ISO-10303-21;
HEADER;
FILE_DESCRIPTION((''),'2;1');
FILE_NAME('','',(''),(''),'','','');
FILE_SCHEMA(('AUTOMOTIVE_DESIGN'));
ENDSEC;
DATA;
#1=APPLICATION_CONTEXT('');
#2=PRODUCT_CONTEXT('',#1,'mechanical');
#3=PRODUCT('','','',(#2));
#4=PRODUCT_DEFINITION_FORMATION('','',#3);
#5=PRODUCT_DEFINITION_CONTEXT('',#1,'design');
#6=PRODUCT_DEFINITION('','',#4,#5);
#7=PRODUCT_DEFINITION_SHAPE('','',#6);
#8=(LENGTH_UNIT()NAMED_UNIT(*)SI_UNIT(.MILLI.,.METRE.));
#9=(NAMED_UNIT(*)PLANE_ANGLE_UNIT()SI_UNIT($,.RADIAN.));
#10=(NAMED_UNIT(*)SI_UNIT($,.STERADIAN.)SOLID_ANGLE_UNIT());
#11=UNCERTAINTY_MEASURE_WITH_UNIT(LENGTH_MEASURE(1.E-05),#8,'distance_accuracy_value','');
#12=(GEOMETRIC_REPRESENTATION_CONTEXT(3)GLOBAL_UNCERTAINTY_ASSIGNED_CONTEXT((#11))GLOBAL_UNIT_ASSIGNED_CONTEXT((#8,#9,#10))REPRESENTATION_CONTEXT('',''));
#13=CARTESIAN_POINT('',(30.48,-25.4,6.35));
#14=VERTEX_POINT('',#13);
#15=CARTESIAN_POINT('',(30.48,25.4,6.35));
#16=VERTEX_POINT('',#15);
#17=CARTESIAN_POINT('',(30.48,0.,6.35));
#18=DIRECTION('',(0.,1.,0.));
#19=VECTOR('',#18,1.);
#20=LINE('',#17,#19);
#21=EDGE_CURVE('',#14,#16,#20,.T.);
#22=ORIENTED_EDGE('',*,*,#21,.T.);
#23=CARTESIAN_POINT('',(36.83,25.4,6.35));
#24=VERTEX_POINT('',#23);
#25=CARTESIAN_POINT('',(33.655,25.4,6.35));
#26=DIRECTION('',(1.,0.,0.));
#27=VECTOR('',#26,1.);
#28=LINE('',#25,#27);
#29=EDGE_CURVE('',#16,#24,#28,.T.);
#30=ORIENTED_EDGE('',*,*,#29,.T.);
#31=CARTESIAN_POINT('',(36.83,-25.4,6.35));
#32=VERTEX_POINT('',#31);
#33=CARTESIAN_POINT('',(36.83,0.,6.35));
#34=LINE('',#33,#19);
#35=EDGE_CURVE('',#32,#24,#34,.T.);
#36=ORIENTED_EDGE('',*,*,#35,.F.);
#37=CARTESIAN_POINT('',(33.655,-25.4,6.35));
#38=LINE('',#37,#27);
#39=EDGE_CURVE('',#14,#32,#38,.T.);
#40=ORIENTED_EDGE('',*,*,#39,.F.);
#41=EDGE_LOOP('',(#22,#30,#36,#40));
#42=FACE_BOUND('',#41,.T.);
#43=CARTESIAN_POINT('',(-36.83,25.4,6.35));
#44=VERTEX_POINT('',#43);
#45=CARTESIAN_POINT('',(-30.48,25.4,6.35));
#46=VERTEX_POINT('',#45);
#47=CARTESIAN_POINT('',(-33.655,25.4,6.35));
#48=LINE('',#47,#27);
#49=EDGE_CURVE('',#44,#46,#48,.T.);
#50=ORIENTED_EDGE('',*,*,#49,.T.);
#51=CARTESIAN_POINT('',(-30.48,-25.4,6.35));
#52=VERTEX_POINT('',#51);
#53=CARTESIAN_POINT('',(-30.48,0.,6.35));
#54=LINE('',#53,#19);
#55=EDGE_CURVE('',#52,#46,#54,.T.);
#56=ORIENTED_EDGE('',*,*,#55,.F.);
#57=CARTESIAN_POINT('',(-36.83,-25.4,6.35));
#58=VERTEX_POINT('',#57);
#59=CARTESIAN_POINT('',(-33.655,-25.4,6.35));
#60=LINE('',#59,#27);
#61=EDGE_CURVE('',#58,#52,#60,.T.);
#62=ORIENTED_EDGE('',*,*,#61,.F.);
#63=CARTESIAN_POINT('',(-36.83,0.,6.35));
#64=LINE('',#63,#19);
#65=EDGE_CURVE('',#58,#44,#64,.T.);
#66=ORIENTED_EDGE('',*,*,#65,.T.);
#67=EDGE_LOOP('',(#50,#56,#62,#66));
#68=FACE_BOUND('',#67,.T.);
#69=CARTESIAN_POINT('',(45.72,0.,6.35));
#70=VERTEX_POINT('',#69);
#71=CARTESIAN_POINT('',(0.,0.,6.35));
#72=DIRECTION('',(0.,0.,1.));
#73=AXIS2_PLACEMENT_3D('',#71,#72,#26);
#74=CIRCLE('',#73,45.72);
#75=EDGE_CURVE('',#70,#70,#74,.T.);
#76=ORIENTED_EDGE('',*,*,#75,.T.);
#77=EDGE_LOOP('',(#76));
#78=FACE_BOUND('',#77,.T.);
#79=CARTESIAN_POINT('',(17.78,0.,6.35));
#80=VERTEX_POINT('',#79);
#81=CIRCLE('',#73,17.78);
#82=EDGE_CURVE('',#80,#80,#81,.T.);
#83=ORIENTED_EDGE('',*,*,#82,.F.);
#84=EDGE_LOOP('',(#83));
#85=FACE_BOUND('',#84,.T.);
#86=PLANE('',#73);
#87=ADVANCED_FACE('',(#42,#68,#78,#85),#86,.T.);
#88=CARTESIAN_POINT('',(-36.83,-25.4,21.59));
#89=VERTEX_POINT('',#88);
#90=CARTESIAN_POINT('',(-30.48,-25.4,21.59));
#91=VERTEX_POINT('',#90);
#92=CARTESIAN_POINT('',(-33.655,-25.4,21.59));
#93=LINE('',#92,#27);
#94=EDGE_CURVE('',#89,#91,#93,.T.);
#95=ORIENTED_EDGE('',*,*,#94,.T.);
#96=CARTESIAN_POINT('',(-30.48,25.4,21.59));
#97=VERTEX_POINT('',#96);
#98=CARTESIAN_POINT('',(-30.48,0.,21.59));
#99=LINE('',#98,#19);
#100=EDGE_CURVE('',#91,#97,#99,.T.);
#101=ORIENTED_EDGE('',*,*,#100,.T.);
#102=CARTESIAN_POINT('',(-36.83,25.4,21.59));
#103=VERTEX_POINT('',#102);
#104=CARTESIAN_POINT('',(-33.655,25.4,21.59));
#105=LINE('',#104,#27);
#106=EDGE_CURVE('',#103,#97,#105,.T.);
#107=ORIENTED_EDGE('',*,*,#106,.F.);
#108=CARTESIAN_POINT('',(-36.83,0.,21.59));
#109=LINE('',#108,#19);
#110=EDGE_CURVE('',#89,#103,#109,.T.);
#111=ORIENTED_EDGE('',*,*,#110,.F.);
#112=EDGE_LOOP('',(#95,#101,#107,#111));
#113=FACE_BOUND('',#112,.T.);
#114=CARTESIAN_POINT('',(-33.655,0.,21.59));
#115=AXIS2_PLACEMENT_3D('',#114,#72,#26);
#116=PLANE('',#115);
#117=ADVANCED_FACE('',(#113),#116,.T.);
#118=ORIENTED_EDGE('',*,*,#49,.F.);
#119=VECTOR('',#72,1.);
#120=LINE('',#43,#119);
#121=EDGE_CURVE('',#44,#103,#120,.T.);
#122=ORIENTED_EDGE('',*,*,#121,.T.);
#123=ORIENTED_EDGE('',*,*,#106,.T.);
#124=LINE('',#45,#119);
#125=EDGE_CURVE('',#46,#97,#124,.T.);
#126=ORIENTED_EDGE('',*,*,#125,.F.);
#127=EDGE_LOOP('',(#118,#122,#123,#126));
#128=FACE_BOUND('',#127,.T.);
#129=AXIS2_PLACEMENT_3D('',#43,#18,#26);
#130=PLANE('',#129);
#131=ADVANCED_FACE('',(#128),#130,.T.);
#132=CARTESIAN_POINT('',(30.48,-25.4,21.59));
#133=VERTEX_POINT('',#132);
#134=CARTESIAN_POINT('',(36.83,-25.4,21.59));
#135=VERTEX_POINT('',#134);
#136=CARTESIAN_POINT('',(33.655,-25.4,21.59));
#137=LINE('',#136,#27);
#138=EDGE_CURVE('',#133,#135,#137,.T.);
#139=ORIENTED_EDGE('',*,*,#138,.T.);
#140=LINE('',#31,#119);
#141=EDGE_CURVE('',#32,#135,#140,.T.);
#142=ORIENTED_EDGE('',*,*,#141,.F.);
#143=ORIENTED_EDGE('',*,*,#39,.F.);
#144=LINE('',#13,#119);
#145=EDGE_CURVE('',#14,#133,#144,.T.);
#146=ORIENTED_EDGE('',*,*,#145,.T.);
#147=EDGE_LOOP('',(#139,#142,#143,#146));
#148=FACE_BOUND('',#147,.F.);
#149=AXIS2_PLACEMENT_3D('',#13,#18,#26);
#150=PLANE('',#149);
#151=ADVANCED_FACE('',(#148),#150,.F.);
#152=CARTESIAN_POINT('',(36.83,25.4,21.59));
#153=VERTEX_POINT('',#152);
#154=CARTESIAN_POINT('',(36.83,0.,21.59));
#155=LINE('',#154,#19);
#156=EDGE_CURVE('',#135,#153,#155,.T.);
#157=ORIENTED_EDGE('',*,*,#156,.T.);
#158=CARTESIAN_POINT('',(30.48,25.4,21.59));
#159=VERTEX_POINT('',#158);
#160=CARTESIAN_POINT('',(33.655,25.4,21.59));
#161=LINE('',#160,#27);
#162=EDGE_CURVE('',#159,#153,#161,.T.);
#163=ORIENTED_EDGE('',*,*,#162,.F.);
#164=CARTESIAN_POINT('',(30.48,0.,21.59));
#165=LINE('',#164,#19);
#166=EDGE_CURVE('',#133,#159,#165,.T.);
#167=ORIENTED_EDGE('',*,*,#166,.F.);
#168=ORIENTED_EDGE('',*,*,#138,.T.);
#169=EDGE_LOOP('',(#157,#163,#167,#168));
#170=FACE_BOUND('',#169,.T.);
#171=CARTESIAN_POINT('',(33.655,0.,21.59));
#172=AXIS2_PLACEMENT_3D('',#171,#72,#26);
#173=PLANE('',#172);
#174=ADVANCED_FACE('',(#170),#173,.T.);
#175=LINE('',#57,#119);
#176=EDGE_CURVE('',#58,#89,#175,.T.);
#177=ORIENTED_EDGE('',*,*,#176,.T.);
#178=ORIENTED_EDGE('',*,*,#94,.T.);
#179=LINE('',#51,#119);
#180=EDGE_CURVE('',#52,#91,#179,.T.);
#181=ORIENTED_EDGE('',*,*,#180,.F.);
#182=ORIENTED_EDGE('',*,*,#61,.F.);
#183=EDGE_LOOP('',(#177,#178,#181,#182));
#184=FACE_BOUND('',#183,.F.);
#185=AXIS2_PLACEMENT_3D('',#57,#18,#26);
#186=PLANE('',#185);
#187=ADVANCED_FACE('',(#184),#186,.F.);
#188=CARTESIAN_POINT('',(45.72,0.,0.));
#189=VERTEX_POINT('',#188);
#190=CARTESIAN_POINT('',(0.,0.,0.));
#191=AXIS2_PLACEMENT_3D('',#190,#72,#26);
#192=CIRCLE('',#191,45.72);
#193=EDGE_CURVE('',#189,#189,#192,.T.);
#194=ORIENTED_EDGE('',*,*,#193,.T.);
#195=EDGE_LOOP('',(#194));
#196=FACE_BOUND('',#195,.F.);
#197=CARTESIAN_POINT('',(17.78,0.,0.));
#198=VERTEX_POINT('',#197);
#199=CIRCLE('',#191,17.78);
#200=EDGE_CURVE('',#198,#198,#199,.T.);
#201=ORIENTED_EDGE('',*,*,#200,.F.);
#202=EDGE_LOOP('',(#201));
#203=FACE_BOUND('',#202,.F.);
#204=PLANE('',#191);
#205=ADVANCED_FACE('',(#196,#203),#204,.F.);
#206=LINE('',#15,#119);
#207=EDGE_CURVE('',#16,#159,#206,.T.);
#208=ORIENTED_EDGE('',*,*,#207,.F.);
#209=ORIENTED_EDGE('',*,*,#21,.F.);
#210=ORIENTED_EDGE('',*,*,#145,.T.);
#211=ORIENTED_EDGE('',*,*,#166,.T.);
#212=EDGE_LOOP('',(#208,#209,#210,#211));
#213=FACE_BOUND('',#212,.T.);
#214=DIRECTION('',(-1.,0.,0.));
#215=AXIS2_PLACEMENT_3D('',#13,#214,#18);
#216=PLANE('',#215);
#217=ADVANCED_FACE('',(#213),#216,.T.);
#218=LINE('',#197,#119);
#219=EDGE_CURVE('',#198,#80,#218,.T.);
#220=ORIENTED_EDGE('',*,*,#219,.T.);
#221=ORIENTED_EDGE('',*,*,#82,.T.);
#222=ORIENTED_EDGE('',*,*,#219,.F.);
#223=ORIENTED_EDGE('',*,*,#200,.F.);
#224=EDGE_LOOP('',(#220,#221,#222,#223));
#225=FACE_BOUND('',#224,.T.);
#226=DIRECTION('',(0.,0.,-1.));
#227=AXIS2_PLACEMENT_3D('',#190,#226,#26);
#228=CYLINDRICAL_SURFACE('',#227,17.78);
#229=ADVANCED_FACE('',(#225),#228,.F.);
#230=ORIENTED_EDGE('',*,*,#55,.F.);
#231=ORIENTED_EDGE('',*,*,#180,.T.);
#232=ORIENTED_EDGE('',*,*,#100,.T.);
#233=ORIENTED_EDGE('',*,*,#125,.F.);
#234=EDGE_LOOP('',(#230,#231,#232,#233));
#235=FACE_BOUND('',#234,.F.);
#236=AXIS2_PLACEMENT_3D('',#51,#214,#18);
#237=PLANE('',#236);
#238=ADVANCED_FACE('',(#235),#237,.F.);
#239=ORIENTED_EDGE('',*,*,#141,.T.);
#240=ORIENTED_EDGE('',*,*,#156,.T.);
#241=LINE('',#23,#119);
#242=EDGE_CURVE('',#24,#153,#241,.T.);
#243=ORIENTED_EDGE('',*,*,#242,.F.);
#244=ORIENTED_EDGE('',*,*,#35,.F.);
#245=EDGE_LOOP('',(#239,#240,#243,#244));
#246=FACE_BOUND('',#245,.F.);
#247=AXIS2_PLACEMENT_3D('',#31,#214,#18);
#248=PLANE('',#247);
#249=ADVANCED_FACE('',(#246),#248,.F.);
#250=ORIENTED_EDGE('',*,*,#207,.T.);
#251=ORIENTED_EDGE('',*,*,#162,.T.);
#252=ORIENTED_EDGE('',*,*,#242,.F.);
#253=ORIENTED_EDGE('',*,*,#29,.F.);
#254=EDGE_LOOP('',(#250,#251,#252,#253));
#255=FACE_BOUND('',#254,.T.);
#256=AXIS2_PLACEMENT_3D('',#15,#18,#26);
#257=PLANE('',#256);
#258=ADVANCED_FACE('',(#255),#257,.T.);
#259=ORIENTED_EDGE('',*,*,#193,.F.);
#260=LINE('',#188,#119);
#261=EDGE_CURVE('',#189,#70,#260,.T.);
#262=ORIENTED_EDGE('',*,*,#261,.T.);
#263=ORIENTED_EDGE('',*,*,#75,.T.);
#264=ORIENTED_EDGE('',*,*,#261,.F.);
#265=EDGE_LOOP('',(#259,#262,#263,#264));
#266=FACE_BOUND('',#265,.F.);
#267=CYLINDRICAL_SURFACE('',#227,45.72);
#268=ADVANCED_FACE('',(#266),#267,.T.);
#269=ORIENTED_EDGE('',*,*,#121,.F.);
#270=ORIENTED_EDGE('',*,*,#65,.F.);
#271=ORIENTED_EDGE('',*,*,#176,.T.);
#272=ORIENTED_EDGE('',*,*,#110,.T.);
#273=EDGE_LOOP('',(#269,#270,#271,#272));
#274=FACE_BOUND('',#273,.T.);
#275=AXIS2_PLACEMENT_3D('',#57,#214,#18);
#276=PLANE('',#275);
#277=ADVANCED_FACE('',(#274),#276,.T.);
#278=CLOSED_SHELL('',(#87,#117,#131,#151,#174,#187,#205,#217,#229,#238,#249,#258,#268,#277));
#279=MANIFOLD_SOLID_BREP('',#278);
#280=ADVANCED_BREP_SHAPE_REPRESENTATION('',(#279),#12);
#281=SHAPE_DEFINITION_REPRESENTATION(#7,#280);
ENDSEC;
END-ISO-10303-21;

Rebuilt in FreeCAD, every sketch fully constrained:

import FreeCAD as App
import Part
import Sketcher
Q = App.Units.Quantity


def add_polygon(sketch, points):
    """Adds a closed chain of lines whose ends are joined by coincident constraints."""
    first, n = sketch.GeometryCount, len(points)
    for a, b in zip(points, points[1:] + points[:1]):
        sketch.addGeometry(Part.LineSegment(App.Vector(*a, 0), App.Vector(*b, 0)), False)
    for i in range(n):
        sketch.addConstraint(Sketcher.Constraint("Coincident", first + i, 2, first + (i + 1) % n, 1))

doc = App.newDocument("Part")
body = doc.addObject("PartDesign::Body", "Body")

# Sketch on XY plane
sketch1 = body.newObject("Sketcher::SketchObject", "Sketch")
sketch1.AttachmentSupport = (doc.getObject("XY_Plane"), [""])
sketch1.MapMode = "FlatFace"
sketch1.addGeometry([
    Part.Circle(App.Vector(0, 0, 0), App.Vector(0, 0, 1), 46),
    Part.Circle(App.Vector(0, 0, 0), App.Vector(0, 0, 1), 18),
], False)
sketch1.addConstraint([
    Sketcher.Constraint("Coincident", 0, 3, -1, 1),
    Sketcher.Constraint("Coincident", 1, 3, -1, 1),
    Sketcher.Constraint("Diameter", 0, Q("3.6 in")),
    Sketcher.Constraint("Diameter", 1, Q("1.4 in")),
])
pad1 = body.newObject("PartDesign::Pad", "Pad")
pad1.Profile = sketch1
pad1.Length = Q("0.25 in")

# Sketch on XY plane
sketch2 = body.newObject("Sketcher::SketchObject", "Sketch001")
sketch2.AttachmentSupport = (doc.getObject("XY_Plane"), [""])
sketch2.MapMode = "FlatFace"
sketch2.AttachmentOffset = App.Placement(App.Vector(0, 0, 0.25 * 25.4), App.Rotation())
add_polygon(sketch2, [(-37, 25), (-37, -25), (-30, -25), (-30, 25)])  # lines 0-3
add_polygon(sketch2, [(30, 25), (30, -25), (37, -25), (37, 25)])  # lines 4-7
sketch2.addConstraint([
    Sketcher.Constraint("Vertical", 0),
    Sketcher.Constraint("Horizontal", 1),
    Sketcher.Constraint("Vertical", 2),
    Sketcher.Constraint("Horizontal", 3),
    Sketcher.Constraint("Vertical", 4),
    Sketcher.Constraint("Horizontal", 5),
    Sketcher.Constraint("Vertical", 6),
    Sketcher.Constraint("Horizontal", 7),
    Sketcher.Constraint("Symmetric", 2, 2, 4, 2, -1, 1),
    Sketcher.Constraint("Symmetric", 0, 2, 6, 2, -1, 1),
    Sketcher.Constraint("Horizontal", 1, 2, 4, 2),
    Sketcher.Constraint("DistanceY", 0, 2, 0, 1, Q("2 in")),
    Sketcher.Constraint("DistanceX", 1, 1, 1, 2, Q("0.25 in")),
    Sketcher.Constraint("DistanceX", 1, 2, -1, 1, Q("1.2 in")),
])
pad2 = body.newObject("PartDesign::Pad", "Pad001")
pad2.Profile = sketch2
pad2.Length = Q("0.6 in")

doc.recompute()
